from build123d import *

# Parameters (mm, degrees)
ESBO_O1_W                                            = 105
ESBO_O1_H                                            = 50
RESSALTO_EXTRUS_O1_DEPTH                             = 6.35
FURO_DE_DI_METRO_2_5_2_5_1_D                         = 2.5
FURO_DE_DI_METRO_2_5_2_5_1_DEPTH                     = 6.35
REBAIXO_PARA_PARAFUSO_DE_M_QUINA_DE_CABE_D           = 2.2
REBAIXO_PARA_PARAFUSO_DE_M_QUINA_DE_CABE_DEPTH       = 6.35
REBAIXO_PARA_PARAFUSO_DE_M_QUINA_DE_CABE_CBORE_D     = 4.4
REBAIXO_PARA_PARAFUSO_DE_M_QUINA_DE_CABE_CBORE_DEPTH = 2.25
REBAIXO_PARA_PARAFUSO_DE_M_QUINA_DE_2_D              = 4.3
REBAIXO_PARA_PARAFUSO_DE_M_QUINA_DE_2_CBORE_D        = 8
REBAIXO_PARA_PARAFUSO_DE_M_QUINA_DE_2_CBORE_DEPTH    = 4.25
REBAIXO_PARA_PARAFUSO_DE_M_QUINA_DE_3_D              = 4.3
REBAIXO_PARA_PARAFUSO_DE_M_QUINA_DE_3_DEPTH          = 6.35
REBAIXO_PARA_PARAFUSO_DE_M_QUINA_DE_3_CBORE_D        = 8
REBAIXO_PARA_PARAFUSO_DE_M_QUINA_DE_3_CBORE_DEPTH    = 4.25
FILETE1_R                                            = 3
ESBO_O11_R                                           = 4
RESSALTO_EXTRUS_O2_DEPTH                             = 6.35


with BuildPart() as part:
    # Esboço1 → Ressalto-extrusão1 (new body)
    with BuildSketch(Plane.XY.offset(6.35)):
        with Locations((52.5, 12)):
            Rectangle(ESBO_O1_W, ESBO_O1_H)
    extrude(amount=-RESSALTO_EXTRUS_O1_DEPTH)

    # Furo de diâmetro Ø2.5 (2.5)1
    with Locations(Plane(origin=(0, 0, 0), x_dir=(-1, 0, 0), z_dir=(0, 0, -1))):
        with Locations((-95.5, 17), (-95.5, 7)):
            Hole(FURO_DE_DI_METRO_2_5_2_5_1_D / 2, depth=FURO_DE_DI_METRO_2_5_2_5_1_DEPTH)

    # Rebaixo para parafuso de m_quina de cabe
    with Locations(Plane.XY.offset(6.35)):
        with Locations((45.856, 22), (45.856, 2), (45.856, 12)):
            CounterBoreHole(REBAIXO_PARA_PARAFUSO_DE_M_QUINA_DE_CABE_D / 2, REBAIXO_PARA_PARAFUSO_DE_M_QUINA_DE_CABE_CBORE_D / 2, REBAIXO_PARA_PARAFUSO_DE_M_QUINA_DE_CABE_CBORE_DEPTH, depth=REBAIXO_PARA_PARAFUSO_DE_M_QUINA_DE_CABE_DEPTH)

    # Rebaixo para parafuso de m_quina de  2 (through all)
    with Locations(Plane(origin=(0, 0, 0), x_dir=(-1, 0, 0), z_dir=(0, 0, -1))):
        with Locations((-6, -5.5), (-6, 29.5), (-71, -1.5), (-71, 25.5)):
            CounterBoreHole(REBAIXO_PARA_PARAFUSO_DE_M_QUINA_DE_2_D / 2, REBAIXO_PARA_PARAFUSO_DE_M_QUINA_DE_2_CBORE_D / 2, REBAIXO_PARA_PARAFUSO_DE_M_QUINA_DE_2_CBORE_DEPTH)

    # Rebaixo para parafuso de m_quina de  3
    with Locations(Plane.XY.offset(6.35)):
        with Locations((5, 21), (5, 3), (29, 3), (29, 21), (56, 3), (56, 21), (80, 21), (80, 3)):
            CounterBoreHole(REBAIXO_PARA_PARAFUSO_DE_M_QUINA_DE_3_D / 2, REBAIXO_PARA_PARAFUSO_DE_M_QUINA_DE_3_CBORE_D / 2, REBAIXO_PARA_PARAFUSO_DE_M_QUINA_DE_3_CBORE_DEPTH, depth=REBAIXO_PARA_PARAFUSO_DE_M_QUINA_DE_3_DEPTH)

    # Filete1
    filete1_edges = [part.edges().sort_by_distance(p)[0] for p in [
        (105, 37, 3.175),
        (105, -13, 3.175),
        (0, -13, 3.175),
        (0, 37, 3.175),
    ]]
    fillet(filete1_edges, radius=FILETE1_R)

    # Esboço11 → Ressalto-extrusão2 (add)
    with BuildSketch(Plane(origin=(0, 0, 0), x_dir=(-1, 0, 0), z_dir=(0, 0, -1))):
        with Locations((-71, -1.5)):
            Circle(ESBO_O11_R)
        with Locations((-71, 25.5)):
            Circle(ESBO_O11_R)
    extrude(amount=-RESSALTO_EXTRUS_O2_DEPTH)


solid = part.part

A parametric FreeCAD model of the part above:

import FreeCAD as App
import Part
import Sketcher
from FreeCAD import Vector


def edges_at(feature, points):
    """Names of the edges that pass closest to the given points."""
    edges = feature.Shape.Edges
    near = lambda p: min(range(len(edges)), key=lambda i: edges[i].distToShape(Part.Vertex(*p))[0])
    return sorted({f"Edge{near(p) + 1}" for p in points})


def add_polygon(sketch, points):
    """Adds a closed chain of lines whose ends are joined by coincident constraints."""
    first, n = sketch.GeometryCount, len(points)
    for a, b in zip(points, points[1:] + points[:1]):
        sketch.addGeometry(Part.LineSegment(App.Vector(*a, 0), App.Vector(*b, 0)), False)
    for i in range(n):
        sketch.addConstraint(Sketcher.Constraint("Coincident", first + i, 2, first + (i + 1) % n, 1))

doc = App.newDocument("Part")
body = doc.addObject("PartDesign::Body", "Body")

# Sketch on XY plane
sketch1 = body.newObject("Sketcher::SketchObject", "Sketch")
sketch1.AttachmentSupport = (doc.getObject("XY_Plane"), [""])
sketch1.MapMode = "FlatFace"
sketch1.AttachmentOffset = App.Placement(Vector(0, 0, 6.35), App.Rotation())
add_polygon(sketch1, [(0, 37), (0, -13), (105, -13), (105, 37)])  # lines 0-3
sketch1.addConstraint([
    Sketcher.Constraint("Vertical", 0),
    Sketcher.Constraint("Horizontal", 1),
    Sketcher.Constraint("Vertical", 2),
    Sketcher.Constraint("Horizontal", 3),
    Sketcher.Constraint("PointOnObject", 0, 2, -2),
    Sketcher.Constraint("DistanceX", 1, 1, 1, 2, 105.0),
    Sketcher.Constraint("DistanceY", 0, 2, 0, 1, 50.0),
    Sketcher.Constraint("DistanceY", 0, 2, -1, 1, 13.0),
])
pad1 = body.newObject("PartDesign::Pad", "Pad")
pad1.Profile = sketch1
pad1.Length = 6.35
pad1.Reversed = True

# Sketch on XY plane
sketch2 = body.newObject("Sketcher::SketchObject", "Sketch001")
sketch2.AttachmentSupport = (doc.getObject("XY_Plane"), [""])
sketch2.MapMode = "FlatFace"
sketch2.addGeometry([
    Part.Circle(Vector(95.5, 17, 0), Vector(0, 0, 1), 1.2),
    Part.Circle(Vector(95.5, 7, 0), Vector(0, 0, 1), 1.2),
], False)
sketch2.addConstraint([
    Sketcher.Constraint("Equal", 0, 1),
    Sketcher.Constraint("Vertical", 0, 3, 1, 3),
    Sketcher.Constraint("Diameter", 0, 2.5),
    Sketcher.Constraint("DistanceY", -1, 1, 0, 3, 17.0),
    Sketcher.Constraint("DistanceY", -1, 1, 1, 3, 7.0),
    Sketcher.Constraint("DistanceX", -1, 1, 0, 3, 95.5),
])
doc.recompute()
hole = body.newObject("PartDesign::Hole", "Hole")
hole.Profile = sketch2
hole.ThreadType = "None"
hole.Diameter = 2.5
hole.DepthType = "Dimension"
hole.Depth = 6.35
hole.DrillPoint = "Flat"
hole.Reversed = True

# Sketch on XY plane
sketch3 = body.newObject("Sketcher::SketchObject", "Sketch002")
sketch3.AttachmentSupport = (doc.getObject("XY_Plane"), [""])
sketch3.MapMode = "FlatFace"
sketch3.AttachmentOffset = App.Placement(Vector(0, 0, 6.35), App.Rotation())
sketch3.addGeometry([
    Part.Circle(Vector(45.9, 22, 0), Vector(0, 0, 1), 1.1),
    Part.Circle(Vector(45.9, 2, 0), Vector(0, 0, 1), 1.1),
    Part.Circle(Vector(45.9, 12, 0), Vector(0, 0, 1), 1.1),
], False)
sketch3.addConstraint([
    Sketcher.Constraint("Equal", 0, 1),
    Sketcher.Constraint("Equal", 1, 2),
    Sketcher.Constraint("Vertical", 0, 3, 1, 3),
    Sketcher.Constraint("Vertical", 1, 3, 2, 3),
    Sketcher.Constraint("Diameter", 0, 2.2),
    Sketcher.Constraint("DistanceY", -1, 1, 0, 3, 22.0),
    Sketcher.Constraint("DistanceY", -1, 1, 1, 3, 2.0),
    Sketcher.Constraint("DistanceY", -1, 1, 2, 3, 12.0),
    Sketcher.Constraint("DistanceX", -1, 1, 0, 3, 45.856),
])
doc.recompute()
hole2 = body.newObject("PartDesign::Hole", "Hole001")
hole2.Profile = sketch3
hole2.ThreadType = "None"
hole2.Diameter = 2.2
hole2.DepthType = "Dimension"
hole2.Depth = 6.35
hole2.DrillPoint = "Flat"
hole2.HoleCutType = "Counterbore"
hole2.HoleCutDiameter = 4.4
hole2.HoleCutDepth = 2.25

# Sketch on XY plane
sketch4 = body.newObject("Sketcher::SketchObject", "Sketch003")
sketch4.AttachmentSupport = (doc.getObject("XY_Plane"), [""])
sketch4.MapMode = "FlatFace"
sketch4.addGeometry([
    Part.Circle(Vector(6, -5.5, 0), Vector(0, 0, 1), 2.1),
    Part.Circle(Vector(6, 29.5, 0), Vector(0, 0, 1), 2.1),
    Part.Circle(Vector(71, -1.5, 0), Vector(0, 0, 1), 2.1),
    Part.Circle(Vector(71, 25.5, 0), Vector(0, 0, 1), 2.1),
], False)
sketch4.addConstraint([
    Sketcher.Constraint("Equal", 0, 1),
    Sketcher.Constraint("Equal", 1, 2),
    Sketcher.Constraint("Equal", 2, 3),
    Sketcher.Constraint("Vertical", 0, 3, 1, 3),
    Sketcher.Constraint("Vertical", 2, 3, 3, 3),
    Sketcher.Constraint("Diameter", 0, 4.3),
    Sketcher.Constraint("DistanceX", -1, 1, 0, 3, 6.0),
    Sketcher.Constraint("DistanceX", -1, 1, 2, 3, 71.0),
    Sketcher.Constraint("DistanceY", 0, 3, 1, 3, 35.0),
    Sketcher.Constraint("DistanceY", 0, 3, 2, 3, 4.0),
    Sketcher.Constraint("DistanceY", 2, 3, 3, 3, 27.0),
    Sketcher.Constraint("DistanceY", 0, 3, -1, 1, 5.5),
])
doc.recompute()
hole3 = body.newObject("PartDesign::Hole", "Hole002")
hole3.Profile = sketch4
hole3.ThreadType = "None"
hole3.Diameter = 4.3
hole3.DepthType = "ThroughAll"
hole3.HoleCutType = "Counterbore"
hole3.HoleCutDiameter = 8
hole3.HoleCutDepth = 4.25
hole3.Reversed = True

# Sketch on XY plane
sketch5 = body.newObject("Sketcher::SketchObject", "Sketch004")
sketch5.AttachmentSupport = (doc.getObject("XY_Plane"), [""])
sketch5.MapMode = "FlatFace"
sketch5.AttachmentOffset = App.Placement(Vector(0, 0, 6.35), App.Rotation())
sketch5.addGeometry([
    Part.Circle(Vector(5, 21, 0), Vector(0, 0, 1), 2.1),  # 0
    Part.Circle(Vector(5, 3, 0), Vector(0, 0, 1), 2.1),  # 1
    Part.Circle(Vector(29, 3, 0), Vector(0, 0, 1), 2.1),  # 2
    Part.Circle(Vector(29, 21, 0), Vector(0, 0, 1), 2.1),  # 3
    Part.Circle(Vector(56, 3, 0), Vector(0, 0, 1), 2.1),  # 4
    Part.Circle(Vector(56, 21, 0), Vector(0, 0, 1), 2.1),  # 5
    Part.Circle(Vector(80, 21, 0), Vector(0, 0, 1), 2.1),  # 6
    Part.Circle(Vector(80, 3, 0), Vector(0, 0, 1), 2.1),  # 7
], False)
sketch5.addConstraint([
    Sketcher.Constraint("Equal", 0, 1),
    Sketcher.Constraint("Equal", 1, 2),
    Sketcher.Constraint("Equal", 2, 3),
    Sketcher.Constraint("Equal", 3, 4),
    Sketcher.Constraint("Equal", 4, 5),
    Sketcher.Constraint("Equal", 5, 6),
    Sketcher.Constraint("Equal", 6, 7),
    Sketcher.Constraint("Horizontal", 1, 3, 2, 3),
    Sketcher.Constraint("Horizontal", 0, 3, 3, 3),
    Sketcher.Constraint("Horizontal", 2, 3, 4, 3),
    Sketcher.Constraint("Horizontal", 3, 3, 5, 3),
    Sketcher.Constraint("Horizontal", 5, 3, 6, 3),
    Sketcher.Constraint("Horizontal", 4, 3, 7, 3),
    Sketcher.Constraint("Vertical", 0, 3, 1, 3),
    Sketcher.Constraint("Vertical", 2, 3, 3, 3),
    Sketcher.Constraint("Vertical", 4, 3, 5, 3),
    Sketcher.Constraint("Vertical", 6, 3, 7, 3),
    Sketcher.Constraint("Diameter", 0, 4.3),
    Sketcher.Constraint("DistanceX", -1, 1, 0, 3, 5.0),
    Sketcher.Constraint("DistanceY", -1, 1, 0, 3, 21.0),
    Sketcher.Constraint("DistanceY", -1, 1, 1, 3, 3.0),
    Sketcher.Constraint("DistanceX", -1, 1, 2, 3, 29.0),
    Sketcher.Constraint("DistanceX", -1, 1, 4, 3, 56.0),
    Sketcher.Constraint("DistanceX", -1, 1, 6, 3, 80.0),
])
doc.recompute()
hole4 = body.newObject("PartDesign::Hole", "Hole003")
hole4.Profile = sketch5
hole4.ThreadType = "None"
hole4.Diameter = 4.3
hole4.DepthType = "Dimension"
hole4.Depth = 6.35
hole4.DrillPoint = "Flat"
hole4.HoleCutType = "Counterbore"
hole4.HoleCutDiameter = 8
hole4.HoleCutDepth = 4.25
doc.recompute()

fillet = body.newObject("PartDesign::Fillet", "Fillet")
fillet.Base = (hole4, edges_at(hole4, [
    (105, 37, 3.175),
    (105, -13, 3.175),
    (0, -13, 3.175),
    (0, 37, 3.175),
]))
fillet.Radius = 3

# Sketch on XY plane
sketch6 = body.newObject("Sketcher::SketchObject", "Sketch005")
sketch6.AttachmentSupport = (doc.getObject("XY_Plane"), [""])
sketch6.MapMode = "FlatFace"
sketch6.addGeometry([
    Part.Circle(Vector(71, -1.5, 0), Vector(0, 0, 1), 4),
    Part.Circle(Vector(71, 25.5, 0), Vector(0, 0, 1), 4),
], False)
sketch6.addConstraint([
    Sketcher.Constraint("Equal", 0, 1),
    Sketcher.Constraint("Vertical", 0, 3, 1, 3),
    Sketcher.Constraint("Diameter", 0, 8.0),
    Sketcher.Constraint("DistanceX", -1, 1, 0, 3, 71.0),
    Sketcher.Constraint("DistanceY", 0, 3, 1, 3, 27.0),
    Sketcher.Constraint("DistanceY", 0, 3, -1, 1, 1.5),
])
pad2 = body.newObject("PartDesign::Pad", "Pad001")
pad2.Profile = sketch6
pad2.Length = 6.35

doc.recompute()
